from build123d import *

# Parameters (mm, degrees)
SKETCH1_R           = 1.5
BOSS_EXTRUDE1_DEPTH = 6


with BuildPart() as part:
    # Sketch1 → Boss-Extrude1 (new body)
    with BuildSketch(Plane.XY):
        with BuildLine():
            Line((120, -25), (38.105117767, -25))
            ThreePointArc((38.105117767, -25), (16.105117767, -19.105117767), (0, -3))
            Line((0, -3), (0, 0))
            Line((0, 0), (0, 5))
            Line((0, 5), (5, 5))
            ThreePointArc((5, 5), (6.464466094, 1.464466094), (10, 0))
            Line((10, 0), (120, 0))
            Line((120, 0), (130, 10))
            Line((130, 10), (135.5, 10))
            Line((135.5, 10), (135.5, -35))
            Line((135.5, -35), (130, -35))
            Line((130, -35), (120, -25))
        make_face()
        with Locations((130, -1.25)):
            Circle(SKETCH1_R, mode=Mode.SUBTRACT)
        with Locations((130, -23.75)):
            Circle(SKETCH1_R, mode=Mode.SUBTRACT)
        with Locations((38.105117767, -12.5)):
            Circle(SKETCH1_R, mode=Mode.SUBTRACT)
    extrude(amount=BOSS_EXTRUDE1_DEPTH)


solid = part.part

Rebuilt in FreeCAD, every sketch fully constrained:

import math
import FreeCAD as App
import Part
import Sketcher

doc = App.newDocument("Part")
params = doc.addObject("Spreadsheet::Sheet", "Params")
for row, (alias, value) in enumerate([
    ("sketch1_diameter", "3 mm"),
    ("sketch1_radius", "5 mm"),
    ("sketch1_radius2", "44 mm"),
    ("sketch1_width", "110 mm"),
    ("sketch1_width2", "5 mm"),
    ("pad1_length", "6 mm"),
], start=1):
    params.set(f"A{row}", alias)
    params.set(f"B{row}", "=" + value)
    params.setAlias(f"B{row}", alias)

body = doc.addObject("PartDesign::Body", "Body")

sketch1 = body.newObject("Sketcher::SketchObject", "Sketch")
sketch1.AttachmentSupport = (doc.getObject("XY_Plane"), [""])
sketch1.MapMode = "FlatFace"
sketch1.addGeometry(Part.LineSegment(App.Vector(38.1, -25, 0), App.Vector(120, -25, 0)), False)
sketch1.addGeometry(Part.LineSegment(App.Vector(120, -25, 0), App.Vector(130, -35, 0)), False)
sketch1.addGeometry(Part.LineSegment(App.Vector(130, -35, 0), App.Vector(135.5, -35, 0)), False)
sketch1.addGeometry(Part.LineSegment(App.Vector(135.5, -35, 0), App.Vector(135.5, 10, 0)), False)
sketch1.addGeometry(Part.LineSegment(App.Vector(135.5, 10, 0), App.Vector(130, 10, 0)), False)
sketch1.addGeometry(Part.LineSegment(App.Vector(130, 10, 0), App.Vector(120, 0, 0)), False)
sketch1.addGeometry(Part.LineSegment(App.Vector(120, 0, 0), App.Vector(10, 0, 0)), False)
sketch1.addGeometry(Part.ArcOfCircle(Part.Circle(App.Vector(10, 5, 0), App.Vector(0, 0, 1), 5), math.radians(180), math.radians(270)), False)
sketch1.addGeometry(Part.LineSegment(App.Vector(5, 5, 0), App.Vector(0, 5, 0)), False)
sketch1.addGeometry(Part.LineSegment(App.Vector(0, 5, 0), App.Vector(0, -3, 0)), False)
sketch1.addGeometry(Part.ArcOfCircle(Part.Circle(App.Vector(38.1, 19, 0), App.Vector(0, 0, 1), 44), math.radians(-150), math.radians(-90)), False)
sketch1.addGeometry(Part.Circle(App.Vector(130, -23.8, 0), App.Vector(0, 0, 1), 1.5), False)
sketch1.addGeometry(Part.Circle(App.Vector(130, -1.2, 0), App.Vector(0, 0, 1), 1.5), False)
sketch1.addGeometry(Part.Circle(App.Vector(38.1, -12.5, 0), App.Vector(0, 0, 1), 1.5), False)
sketch1.addConstraint(Sketcher.Constraint("Coincident", 0, 2, 1, 1))
sketch1.addConstraint(Sketcher.Constraint("Coincident", 1, 2, 2, 1))
sketch1.addConstraint(Sketcher.Constraint("Coincident", 2, 2, 3, 1))
sketch1.addConstraint(Sketcher.Constraint("Coincident", 3, 2, 4, 1))
sketch1.addConstraint(Sketcher.Constraint("Coincident", 4, 2, 5, 1))
sketch1.addConstraint(Sketcher.Constraint("Coincident", 5, 2, 6, 1))
sketch1.addConstraint(Sketcher.Constraint("Tangent", 6, 2, 7, 2))
sketch1.addConstraint(Sketcher.Constraint("Coincident", 7, 1, 8, 1))
sketch1.addConstraint(Sketcher.Constraint("Coincident", 8, 2, 9, 1))
sketch1.addConstraint(Sketcher.Constraint("Coincident", 9, 2, 10, 1))
sketch1.addConstraint(Sketcher.Constraint("Tangent", 10, 2, 0, 1))
sketch1.addConstraint(Sketcher.Constraint("Horizontal", 0))
sketch1.addConstraint(Sketcher.Constraint("Horizontal", 2))
sketch1.addConstraint(Sketcher.Constraint("Vertical", 3))
sketch1.addConstraint(Sketcher.Constraint("Horizontal", 4))
sketch1.addConstraint(Sketcher.Constraint("Horizontal", 6))
sketch1.addConstraint(Sketcher.Constraint("Horizontal", 8))
sketch1.addConstraint(Sketcher.Constraint("Vertical", 9))
sketch1.addConstraint(Sketcher.Constraint("Equal", 11, 12))
sketch1.addConstraint(Sketcher.Constraint("Equal", 12, 13))
sketch1.addConstraint(Sketcher.Constraint("PointOnObject", 5, 2, -1))
sketch1.addConstraint(Sketcher.Constraint("PointOnObject", 8, 2, -2))
sketch1.addConstraint(Sketcher.Constraint("Perpendicular", 1, 5))
sketch1.addConstraint(Sketcher.Constraint("Vertical", 11, 3, 12, 3))
sketch1.addConstraint(Sketcher.Constraint("Vertical", 10, 3, 13, 3))
sketch1.addConstraint(Sketcher.Constraint("Vertical", 12, 3, 1, 2))
sketch1.addConstraint(Sketcher.Constraint("Vertical", 1, 2, 4, 2))
sketch1.addConstraint(Sketcher.Constraint("Vertical", 0, 2, 5, 2))
sketch1.addConstraint(Sketcher.Constraint("Equal", 1, 5))
sketch1.addConstraint(Sketcher.Constraint("Diameter", 11, 3.0))
sketch1.addConstraint(Sketcher.Constraint("Radius", 7, 5.0))
sketch1.addConstraint(Sketcher.Constraint("Radius", 10, 44.0))
sketch1.addConstraint(Sketcher.Constraint("DistanceX", 6, 2, 6, 1, 110.0))
sketch1.addConstraint(Sketcher.Constraint("DistanceX", 8, 2, 8, 1, 5.0))
sketch1.addConstraint(Sketcher.Constraint("DistanceY", 3, 1, 3, 2, 45.0))
sketch1.addConstraint(Sketcher.Constraint("DistanceY", 9, 2, 9, 1, 8.0))
sketch1.addConstraint(Sketcher.Constraint("DistanceX", 2, 1, 2, 2, 5.5))
sketch1.addConstraint(Sketcher.Constraint("DistanceY", -1, 1, 10, 3, 19.0))
sketch1.addConstraint(Sketcher.Constraint("DistanceY", -1, 1, 7, 1, 5.0))
sketch1.addConstraint(Sketcher.Constraint("DistanceY", 13, 3, -1, 1, 12.5))
sketch1.addConstraint(Sketcher.Constraint("DistanceY", 11, 3, 12, 3, 22.5))
sketch1.addConstraint(Sketcher.Constraint("DistanceY", 11, 3, -1, 1, 23.75))
sketch1.setExpression("Constraints[29]", "Params.sketch1_diameter")
sketch1.setExpression("Constraints[30]", "Params.sketch1_radius")
sketch1.setExpression("Constraints[31]", "Params.sketch1_radius2")
sketch1.setExpression("Constraints[32]", "Params.sketch1_width")
sketch1.setExpression("Constraints[33]", "Params.sketch1_width2")
pad1 = body.newObject("PartDesign::Pad", "Pad")
pad1.Profile = sketch1
pad1.setExpression("Length", "Params.pad1_length")

doc.recompute()
